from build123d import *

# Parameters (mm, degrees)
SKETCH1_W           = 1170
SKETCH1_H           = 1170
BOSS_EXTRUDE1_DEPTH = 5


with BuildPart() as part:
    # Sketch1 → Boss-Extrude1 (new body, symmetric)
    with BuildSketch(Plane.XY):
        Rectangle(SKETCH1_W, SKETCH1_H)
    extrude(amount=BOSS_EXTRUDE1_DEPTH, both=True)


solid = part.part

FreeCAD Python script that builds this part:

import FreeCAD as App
import Part
import Sketcher

V = App.Vector


def add_polygon(sketch, points):
    """Adds a closed chain of lines whose ends are joined by coincident constraints."""
    first, n = sketch.GeometryCount, len(points)
    for a, b in zip(points, points[1:] + points[:1]):
        sketch.addGeometry(Part.LineSegment(App.Vector(*a, 0), App.Vector(*b, 0)), False)
    for i in range(n):
        sketch.addConstraint(Sketcher.Constraint("Coincident", first + i, 2, first + (i + 1) % n, 1))

doc = App.newDocument("Part")
body = doc.addObject("PartDesign::Body", "Body")

# Sketch on XY plane
sketch1 = body.newObject("Sketcher::SketchObject", "Sketch")
sketch1.AttachmentSupport = (doc.getObject("XY_Plane"), [""])
sketch1.MapMode = "FlatFace"
add_polygon(sketch1, [(-585, 585), (-585, -585), (585, -585), (585, 585)])  # lines 0-3
sketch1.addConstraint([
    Sketcher.Constraint("Vertical", 0),
    Sketcher.Constraint("Horizontal", 1),
    Sketcher.Constraint("Vertical", 2),
    Sketcher.Constraint("Horizontal", 3),
    Sketcher.Constraint("Symmetric", 0, 2, 2, 2, -1, 1),
    Sketcher.Constraint("Equal", 3, 0),
    Sketcher.Constraint("DistanceX", 1, 1, 1, 2, 1170.0),
])
pad1 = body.newObject("PartDesign::Pad", "Pad")
pad1.Profile = sketch1
pad1.Length = 10
pad1.Midplane = True

doc.recompute()
